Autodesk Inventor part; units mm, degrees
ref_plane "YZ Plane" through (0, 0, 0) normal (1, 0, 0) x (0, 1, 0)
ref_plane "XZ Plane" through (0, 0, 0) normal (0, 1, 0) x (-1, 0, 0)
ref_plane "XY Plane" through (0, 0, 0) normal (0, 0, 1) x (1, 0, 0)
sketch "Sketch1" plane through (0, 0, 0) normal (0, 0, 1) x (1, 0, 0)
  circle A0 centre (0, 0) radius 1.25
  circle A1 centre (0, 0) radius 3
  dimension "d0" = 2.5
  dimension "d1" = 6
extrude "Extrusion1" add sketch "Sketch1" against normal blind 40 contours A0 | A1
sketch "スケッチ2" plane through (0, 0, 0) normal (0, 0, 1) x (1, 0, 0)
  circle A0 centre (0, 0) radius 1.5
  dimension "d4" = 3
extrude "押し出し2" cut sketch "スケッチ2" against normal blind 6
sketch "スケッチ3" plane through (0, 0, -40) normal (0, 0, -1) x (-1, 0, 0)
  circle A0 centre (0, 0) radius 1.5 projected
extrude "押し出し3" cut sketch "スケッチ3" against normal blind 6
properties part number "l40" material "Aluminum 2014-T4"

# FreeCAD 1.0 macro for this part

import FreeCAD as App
import Part
import Sketcher
from FreeCAD import Vector
Q = App.Units.Quantity

doc = App.newDocument("Part")
body = doc.addObject("PartDesign::Body", "Body")

# Sketch on XY plane
sketch1 = doc.addObject("Sketcher::SketchObject", "Sketch")
body.addObject(sketch1)
sketch1.AttachmentSupport = (doc.XY_Plane, [""])
sketch1.MapMode = "FlatFace"
sketch1.addGeometry(Part.Circle(Vector(0, 0, 0), Vector(0, 0, 1), 3), False)
sketch1.addConstraint(Sketcher.Constraint("Coincident", 0, 3, -1, 1))
sketch1.addConstraint(Sketcher.Constraint("Diameter", 0, Q("6 mm")))
pad1 = doc.addObject("PartDesign::Pad", "Pad")
body.addObject(pad1)
pad1.Profile = sketch1
pad1.Length = 40
pad1.Reversed = True

# Sketch on XY plane
sketch2 = doc.addObject("Sketcher::SketchObject", "Sketch001")
body.addObject(sketch2)
sketch2.AttachmentSupport = (doc.XY_Plane, [""])
sketch2.MapMode = "FlatFace"
sketch2.addGeometry(Part.Circle(Vector(0, 0, 0), Vector(0, 0, 1), 1.5), False)
sketch2.addConstraint(Sketcher.Constraint("Coincident", 0, 3, -1, 1))
sketch2.addConstraint(Sketcher.Constraint("Diameter", 0, Q("3 mm")))
pocket1 = doc.addObject("PartDesign::Pocket", "Pocket")
body.addObject(pocket1)
pocket1.Profile = sketch2
pocket1.Length = 6

# Sketch on XY plane
sketch3 = doc.addObject("Sketcher::SketchObject", "Sketch002")
body.addObject(sketch3)
sketch3.AttachmentSupport = (doc.XY_Plane, [""])
sketch3.MapMode = "FlatFace"
sketch3.AttachmentOffset = App.Placement(Vector(0, 0, -40), App.Rotation())
sketch3.addGeometry(Part.Circle(Vector(0, 0, 0), Vector(0, 0, 1), 1.5), False)
sketch3.addConstraint(Sketcher.Constraint("Coincident", 0, 3, -1, 1))
sketch3.addConstraint(Sketcher.Constraint("Diameter", 0, Q("3 mm")))
pocket2 = doc.addObject("PartDesign::Pocket", "Pocket001")
body.addObject(pocket2)
pocket2.Profile = sketch3
pocket2.Length = 6
pocket2.Reversed = True

doc.recompute()
